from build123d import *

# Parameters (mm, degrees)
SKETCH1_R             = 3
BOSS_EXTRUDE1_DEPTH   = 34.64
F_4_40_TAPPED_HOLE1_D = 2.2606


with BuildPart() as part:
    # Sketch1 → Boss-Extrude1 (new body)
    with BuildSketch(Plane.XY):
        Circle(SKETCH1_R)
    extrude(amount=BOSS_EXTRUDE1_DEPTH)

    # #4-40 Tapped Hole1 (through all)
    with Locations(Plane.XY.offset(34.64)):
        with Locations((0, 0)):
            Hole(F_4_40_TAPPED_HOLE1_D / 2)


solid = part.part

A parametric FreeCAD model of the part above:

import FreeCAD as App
import Part
import Sketcher
Q = App.Units.Quantity

doc = App.newDocument("Part")
params = doc.addObject("Spreadsheet::Sheet", "Params")
for row, (alias, value) in enumerate([
    ("sketch1_diameter", "6 mm"),
    ("pad1_length", "34.64 mm"),
    ("hole_diameter", "2.2606 mm"),
], start=1):
    params.set(f"A{row}", alias)
    params.set(f"B{row}", "=" + value)
    params.setAlias(f"B{row}", alias)

body = doc.addObject("PartDesign::Body", "Body")

sketch1 = doc.addObject("Sketcher::SketchObject", "Sketch")
body.addObject(sketch1)
sketch1.AttachmentSupport = (doc.XY_Plane, [""])
sketch1.MapMode = "FlatFace"
sketch1.addGeometry(Part.Circle(App.Vector(0, 0, 0), App.Vector(0, 0, 1), 3), False)
sketch1.addConstraint(Sketcher.Constraint("Coincident", 0, 3, -1, 1))
sketch1.addConstraint(Sketcher.Constraint("Diameter", 0, Q("6 mm")))
sketch1.setExpression("Constraints[1]", "Params.sketch1_diameter")
pad1 = doc.addObject("PartDesign::Pad", "Pad")
body.addObject(pad1)
pad1.Profile = sketch1
pad1.setExpression("Length", "Params.pad1_length")

sketch2 = doc.addObject("Sketcher::SketchObject", "Sketch001")
body.addObject(sketch2)
sketch2.AttachmentSupport = (doc.XY_Plane, [""])
sketch2.MapMode = "FlatFace"
sketch2.AttachmentOffset = App.Placement(App.Vector(0, 0, 34.64), App.Rotation())
sketch2.addGeometry(Part.Circle(App.Vector(0, 0, 0), App.Vector(0, 0, 1), 1.1303), False)
sketch2.addConstraint(Sketcher.Constraint("Coincident", 0, 3, -1, 1))
sketch2.addConstraint(Sketcher.Constraint("Diameter", 0, Q("2.2606 mm")))
doc.recompute()
hole = doc.addObject("PartDesign::Hole", "Hole")
body.addObject(hole)
hole.Profile = sketch2
hole.ThreadType = "None"
hole.setExpression("Diameter", "Params.hole_diameter")
hole.DepthType = "ThroughAll"

doc.recompute()
